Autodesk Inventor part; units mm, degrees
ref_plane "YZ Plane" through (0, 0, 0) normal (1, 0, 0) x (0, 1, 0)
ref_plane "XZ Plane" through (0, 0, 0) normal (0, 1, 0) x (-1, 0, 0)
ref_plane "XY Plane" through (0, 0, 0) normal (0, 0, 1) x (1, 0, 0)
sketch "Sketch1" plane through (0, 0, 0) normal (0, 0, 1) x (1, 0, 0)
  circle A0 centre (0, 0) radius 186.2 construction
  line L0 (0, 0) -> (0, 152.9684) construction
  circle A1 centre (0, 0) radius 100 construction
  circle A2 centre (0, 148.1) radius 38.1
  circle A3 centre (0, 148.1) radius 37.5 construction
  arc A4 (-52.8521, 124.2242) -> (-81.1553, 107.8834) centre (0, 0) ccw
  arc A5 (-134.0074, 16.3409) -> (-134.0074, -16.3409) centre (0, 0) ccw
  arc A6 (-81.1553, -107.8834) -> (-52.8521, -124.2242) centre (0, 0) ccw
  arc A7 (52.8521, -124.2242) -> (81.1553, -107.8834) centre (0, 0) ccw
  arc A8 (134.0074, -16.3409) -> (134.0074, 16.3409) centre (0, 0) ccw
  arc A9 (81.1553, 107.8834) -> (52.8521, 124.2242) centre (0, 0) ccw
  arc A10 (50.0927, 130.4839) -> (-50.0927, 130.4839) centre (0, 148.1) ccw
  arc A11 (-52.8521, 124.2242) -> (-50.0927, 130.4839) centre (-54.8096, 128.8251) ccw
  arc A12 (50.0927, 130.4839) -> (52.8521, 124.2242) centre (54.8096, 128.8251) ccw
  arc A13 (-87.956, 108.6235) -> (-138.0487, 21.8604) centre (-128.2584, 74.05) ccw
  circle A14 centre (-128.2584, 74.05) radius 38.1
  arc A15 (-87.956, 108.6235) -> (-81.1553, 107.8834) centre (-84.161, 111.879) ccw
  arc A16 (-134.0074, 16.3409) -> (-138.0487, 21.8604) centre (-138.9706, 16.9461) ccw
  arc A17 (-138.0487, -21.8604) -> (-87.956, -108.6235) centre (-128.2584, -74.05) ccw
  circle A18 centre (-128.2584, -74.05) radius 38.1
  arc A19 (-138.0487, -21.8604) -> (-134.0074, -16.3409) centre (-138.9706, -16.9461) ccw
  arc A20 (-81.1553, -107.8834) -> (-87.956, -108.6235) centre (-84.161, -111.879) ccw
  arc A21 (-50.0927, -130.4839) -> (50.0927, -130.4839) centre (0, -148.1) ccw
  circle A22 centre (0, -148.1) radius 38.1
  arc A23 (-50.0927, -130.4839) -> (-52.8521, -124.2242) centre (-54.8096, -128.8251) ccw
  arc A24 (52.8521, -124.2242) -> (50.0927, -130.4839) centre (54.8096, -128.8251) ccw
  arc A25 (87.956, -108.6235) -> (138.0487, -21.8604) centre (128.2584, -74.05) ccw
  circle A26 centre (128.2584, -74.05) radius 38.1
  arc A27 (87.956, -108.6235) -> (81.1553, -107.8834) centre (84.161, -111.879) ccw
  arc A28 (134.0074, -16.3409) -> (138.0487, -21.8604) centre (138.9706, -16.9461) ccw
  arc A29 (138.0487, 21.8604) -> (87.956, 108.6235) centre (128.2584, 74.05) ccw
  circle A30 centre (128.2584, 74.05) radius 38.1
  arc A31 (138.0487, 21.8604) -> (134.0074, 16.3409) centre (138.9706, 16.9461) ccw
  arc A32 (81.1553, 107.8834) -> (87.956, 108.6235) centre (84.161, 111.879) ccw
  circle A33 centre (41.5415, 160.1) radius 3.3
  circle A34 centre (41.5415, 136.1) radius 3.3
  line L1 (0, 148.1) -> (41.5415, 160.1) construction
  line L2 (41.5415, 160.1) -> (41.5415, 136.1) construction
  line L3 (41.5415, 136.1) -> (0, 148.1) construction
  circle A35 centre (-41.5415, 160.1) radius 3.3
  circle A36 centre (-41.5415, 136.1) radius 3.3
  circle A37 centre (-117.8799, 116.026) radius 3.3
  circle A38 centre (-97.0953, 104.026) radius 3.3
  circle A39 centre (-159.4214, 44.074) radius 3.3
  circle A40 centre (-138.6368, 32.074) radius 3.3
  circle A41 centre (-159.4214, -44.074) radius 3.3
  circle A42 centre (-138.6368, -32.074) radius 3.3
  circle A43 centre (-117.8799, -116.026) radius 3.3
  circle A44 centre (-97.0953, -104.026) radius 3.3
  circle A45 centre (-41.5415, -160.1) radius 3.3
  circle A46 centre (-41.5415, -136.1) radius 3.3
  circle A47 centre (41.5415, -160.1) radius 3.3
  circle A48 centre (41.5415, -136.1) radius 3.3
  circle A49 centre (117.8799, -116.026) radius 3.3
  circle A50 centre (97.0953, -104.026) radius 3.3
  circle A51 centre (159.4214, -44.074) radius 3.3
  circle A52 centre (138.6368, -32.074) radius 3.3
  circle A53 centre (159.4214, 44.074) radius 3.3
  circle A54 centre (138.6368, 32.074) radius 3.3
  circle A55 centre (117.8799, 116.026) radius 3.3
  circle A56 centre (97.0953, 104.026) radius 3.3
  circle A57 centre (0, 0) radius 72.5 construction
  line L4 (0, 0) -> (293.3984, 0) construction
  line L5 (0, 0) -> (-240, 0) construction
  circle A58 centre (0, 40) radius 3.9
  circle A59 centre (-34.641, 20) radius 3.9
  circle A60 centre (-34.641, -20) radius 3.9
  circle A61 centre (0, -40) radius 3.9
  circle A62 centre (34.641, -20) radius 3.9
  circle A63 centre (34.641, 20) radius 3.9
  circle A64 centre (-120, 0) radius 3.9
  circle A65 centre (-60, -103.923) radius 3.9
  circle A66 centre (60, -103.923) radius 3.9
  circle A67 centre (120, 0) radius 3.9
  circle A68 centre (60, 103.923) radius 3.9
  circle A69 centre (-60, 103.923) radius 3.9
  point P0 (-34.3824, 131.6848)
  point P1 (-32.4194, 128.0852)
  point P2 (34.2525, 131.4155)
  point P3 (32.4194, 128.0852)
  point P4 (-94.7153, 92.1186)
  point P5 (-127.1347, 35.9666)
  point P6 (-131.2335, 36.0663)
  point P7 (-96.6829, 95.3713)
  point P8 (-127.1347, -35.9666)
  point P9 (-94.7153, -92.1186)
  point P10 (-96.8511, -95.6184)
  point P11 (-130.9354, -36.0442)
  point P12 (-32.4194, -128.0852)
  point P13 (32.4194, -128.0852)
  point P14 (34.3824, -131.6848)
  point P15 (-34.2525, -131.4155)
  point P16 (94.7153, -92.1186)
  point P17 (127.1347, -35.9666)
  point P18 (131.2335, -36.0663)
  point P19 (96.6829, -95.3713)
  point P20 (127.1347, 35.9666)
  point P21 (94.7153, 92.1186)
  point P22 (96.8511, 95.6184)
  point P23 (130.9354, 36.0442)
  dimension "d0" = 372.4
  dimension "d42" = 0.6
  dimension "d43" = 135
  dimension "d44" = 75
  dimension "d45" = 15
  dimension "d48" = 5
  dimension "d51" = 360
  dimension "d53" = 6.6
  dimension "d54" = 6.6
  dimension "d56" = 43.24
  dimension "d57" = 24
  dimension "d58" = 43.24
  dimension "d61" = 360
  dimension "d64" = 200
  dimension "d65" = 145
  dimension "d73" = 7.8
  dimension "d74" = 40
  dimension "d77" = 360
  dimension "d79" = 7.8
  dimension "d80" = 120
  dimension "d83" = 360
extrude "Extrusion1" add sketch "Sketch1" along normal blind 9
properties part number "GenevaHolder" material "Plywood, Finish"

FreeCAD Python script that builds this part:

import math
import FreeCAD as App
import Part
import Sketcher
Q = App.Units.Quantity

doc = App.newDocument("Part")
params = doc.addObject("Spreadsheet::Sheet", "Params")
for row, (alias, value) in enumerate([
    ("sketch1_radius", "5 mm"),
    ("sketch1_radius2", "135 mm"),
    ("sketch1_diameter", "6.6 mm"),
    ("sketch1_diameter2", "7.8 mm"),
    ("sketch1_diameter3", "76.2 mm"),
    ("pad1_length", "9 mm"),
], start=1):
    params.set(f"A{row}", alias)
    params.set(f"B{row}", "=" + value)
    params.setAlias(f"B{row}", alias)

body = doc.addObject("PartDesign::Body", "Body")

sketch1 = body.newObject("Sketcher::SketchObject", "Sketch")
sketch1.AttachmentSupport = (doc.getObject("XY_Plane"), [""])
sketch1.MapMode = "FlatFace"
sketch1.addGeometry([
    Part.ArcOfCircle(Part.Circle(App.Vector(-54.8096, 128.8251, 0), App.Vector(0, 0, 1), 5.000009), math.radians(-66.952176), math.radians(19.375328)),
    Part.ArcOfCircle(Part.Circle(App.Vector(0.00162, -0.003245, 0), App.Vector(0, 0, 1), 135.003607), math.radians(113.047777), math.radians(126.95204)),
    Part.ArcOfCircle(Part.Circle(App.Vector(-84.161, 111.879, 0), App.Vector(0, 0, 1), 5.000031), math.radians(-139.375711), math.radians(-53.047595)),
    Part.ArcOfCircle(Part.Circle(App.Vector(-128.2584, 74.05, 0), App.Vector(0, 0, 1), 53.100003), math.radians(40.624714), math.radians(259.375307)),
    Part.ArcOfCircle(Part.Circle(App.Vector(-138.9706, 16.9461, 0), App.Vector(0, 0, 1), 4.999962), math.radians(-6.952181), math.radians(79.375065)),
    Part.ArcOfCircle(Part.Circle(App.Vector(0, 0, 0), App.Vector(0, 0, 1), 135.000031), math.radians(173.04766), math.radians(186.95234)),
    Part.ArcOfCircle(Part.Circle(App.Vector(-138.9706, -16.9461, 0), App.Vector(0, 0, 1), 5.000024), math.radians(-79.375065), math.radians(6.952181)),
    Part.ArcOfCircle(Part.Circle(App.Vector(-128.2584, -74.05, 0), App.Vector(0, 0, 1), 53.099947), math.radians(100.624693), math.radians(319.375286)),
    Part.ArcOfCircle(Part.Circle(App.Vector(-84.161, -111.879, 0), App.Vector(0, 0, 1), 4.999905), math.radians(53.047595), math.radians(139.375711)),
    Part.ArcOfCircle(Part.Circle(App.Vector(-0.002, -0.003025, 0), App.Vector(0, 0, 1), 134.99642), math.radians(-126.952412), math.radians(-113.047405)),
    Part.ArcOfCircle(Part.Circle(App.Vector(-54.8096, -128.8251, 0), App.Vector(0, 0, 1), 5.000076), math.radians(-19.375328), math.radians(66.952176)),
    Part.ArcOfCircle(Part.Circle(App.Vector(0, -148.1, 0), App.Vector(0, 0, 1), 53.099958), math.radians(160.624756), math.radians(379.375244)),
    Part.ArcOfCircle(Part.Circle(App.Vector(54.8096, -128.8251, 0), App.Vector(0, 0, 1), 5.000009), math.radians(113.047824), math.radians(199.375328)),
    Part.ArcOfCircle(Part.Circle(App.Vector(-0.00162, 0.003245, 0), App.Vector(0, 0, 1), 135.003607), math.radians(-66.952223), math.radians(-53.04796)),
    Part.ArcOfCircle(Part.Circle(App.Vector(84.161, -111.879, 0), App.Vector(0, 0, 1), 5.000031), math.radians(40.624289), math.radians(126.952405)),
    Part.ArcOfCircle(Part.Circle(App.Vector(128.2584, -74.05, 0), App.Vector(0, 0, 1), 53.100003), math.radians(-139.375286), math.radians(79.375307)),
    Part.ArcOfCircle(Part.Circle(App.Vector(138.9706, -16.9461, 0), App.Vector(0, 0, 1), 4.999962), math.radians(173.047819), math.radians(259.375065)),
    Part.ArcOfCircle(Part.Circle(App.Vector(0, 0, 0), App.Vector(0, 0, 1), 135.000031), math.radians(-6.95234), math.radians(6.95234)),
    Part.ArcOfCircle(Part.Circle(App.Vector(138.9706, 16.9461, 0), App.Vector(0, 0, 1), 5.000024), math.radians(100.624935), math.radians(186.952181)),
    Part.ArcOfCircle(Part.Circle(App.Vector(128.2584, 74.05, 0), App.Vector(0, 0, 1), 53.099947), math.radians(-79.375307), math.radians(139.375286)),
    Part.ArcOfCircle(Part.Circle(App.Vector(84.161, 111.879, 0), App.Vector(0, 0, 1), 4.999905), math.radians(-126.952405), math.radians(-40.624289)),
    Part.ArcOfCircle(Part.Circle(App.Vector(0.002, 0.003025, 0), App.Vector(0, 0, 1), 134.99642), math.radians(53.047588), math.radians(66.952595)),
    Part.ArcOfCircle(Part.Circle(App.Vector(54.8096, 128.8251, 0), App.Vector(0, 0, 1), 5.000076), math.radians(160.624672), math.radians(246.952176)),
    Part.ArcOfCircle(Part.Circle(App.Vector(0, 148.1, 0), App.Vector(0, 0, 1), 53.099958), math.radians(-19.375244), math.radians(199.375244)),
    Part.Circle(App.Vector(-117.8799, -116.026, 0), App.Vector(0, 0, 1), 3.3),
    Part.Circle(App.Vector(-97.0953, -104.026, 0), App.Vector(0, 0, 1), 3.3),
    Part.Circle(App.Vector(-41.5415, -160.1, 0), App.Vector(0, 0, 1), 3.3),
    Part.Circle(App.Vector(-60, -103.923, 0), App.Vector(0, 0, 1), 3.9),
    Part.Circle(App.Vector(-41.5415, -136.1, 0), App.Vector(0, 0, 1), 3.3),
    Part.Circle(App.Vector(-128.2584, -74.05, 0), App.Vector(0, 0, 1), 38.1),
    Part.Circle(App.Vector(-159.4214, -44.074, 0), App.Vector(0, 0, 1), 3.3),
    Part.Circle(App.Vector(-138.6368, -32.074, 0), App.Vector(0, 0, 1), 3.3),
    Part.Circle(App.Vector(-34.641, -20, 0), App.Vector(0, 0, 1), 3.9),
    Part.Circle(App.Vector(41.5415, -160.1, 0), App.Vector(0, 0, 1), 3.3),
    Part.Circle(App.Vector(0, -148.1, 0), App.Vector(0, 0, 1), 38.1),
    Part.Circle(App.Vector(41.5415, -136.1, 0), App.Vector(0, 0, 1), 3.3),
    Part.Circle(App.Vector(60, -103.923, 0), App.Vector(0, 0, 1), 3.9),
    Part.Circle(App.Vector(97.0953, -104.026, 0), App.Vector(0, 0, 1), 3.3),
    Part.Circle(App.Vector(117.8799, -116.026, 0), App.Vector(0, 0, 1), 3.3),
    Part.Circle(App.Vector(0, -40, 0), App.Vector(0, 0, 1), 3.9),
    Part.Circle(App.Vector(34.641, -20, 0), App.Vector(0, 0, 1), 3.9),
    Part.Circle(App.Vector(128.2584, -74.05, 0), App.Vector(0, 0, 1), 38.1),
    Part.Circle(App.Vector(138.6368, -32.074, 0), App.Vector(0, 0, 1), 3.3),
    Part.Circle(App.Vector(159.4214, -44.074, 0), App.Vector(0, 0, 1), 3.3),
    Part.Circle(App.Vector(-159.4214, 44.074, 0), App.Vector(0, 0, 1), 3.3),
    Part.Circle(App.Vector(-138.6368, 32.074, 0), App.Vector(0, 0, 1), 3.3),
    Part.Circle(App.Vector(-120, 0, 0), App.Vector(0, 0, 1), 3.9),
    Part.Circle(App.Vector(-128.2584, 74.05, 0), App.Vector(0, 0, 1), 38.1),
    Part.Circle(App.Vector(-34.641, 20, 0), App.Vector(0, 0, 1), 3.9),
    Part.Circle(App.Vector(-117.8799, 116.026, 0), App.Vector(0, 0, 1), 3.3),
    Part.Circle(App.Vector(-97.0953, 104.026, 0), App.Vector(0, 0, 1), 3.3),
    Part.Circle(App.Vector(-60, 103.923, 0), App.Vector(0, 0, 1), 3.9),
    Part.Circle(App.Vector(-41.5415, 136.1, 0), App.Vector(0, 0, 1), 3.3),
    Part.Circle(App.Vector(-41.5415, 160.1, 0), App.Vector(0, 0, 1), 3.3),
    Part.Circle(App.Vector(34.641, 20, 0), App.Vector(0, 0, 1), 3.9),
    Part.Circle(App.Vector(0, 40, 0), App.Vector(0, 0, 1), 3.9),
    Part.Circle(App.Vector(120, 0, 0), App.Vector(0, 0, 1), 3.9),
    Part.Circle(App.Vector(138.6368, 32.074, 0), App.Vector(0, 0, 1), 3.3),
    Part.Circle(App.Vector(159.4214, 44.074, 0), App.Vector(0, 0, 1), 3.3),
    Part.Circle(App.Vector(128.2584, 74.05, 0), App.Vector(0, 0, 1), 38.1),
    Part.Circle(App.Vector(0, 148.1, 0), App.Vector(0, 0, 1), 38.1),
    Part.Circle(App.Vector(41.5415, 136.1, 0), App.Vector(0, 0, 1), 3.3),
    Part.Circle(App.Vector(60, 103.923, 0), App.Vector(0, 0, 1), 3.9),
    Part.Circle(App.Vector(41.5415, 160.1, 0), App.Vector(0, 0, 1), 3.3),
    Part.Circle(App.Vector(97.0953, 104.026, 0), App.Vector(0, 0, 1), 3.3),
    Part.Circle(App.Vector(117.8799, 116.026, 0), App.Vector(0, 0, 1), 3.3),
], False)
sketch1.addConstraint([
    Sketcher.Constraint("Tangent", 0, 1, 1, 1),
    Sketcher.Constraint("Tangent", 1, 2, 2, 2),
    Sketcher.Constraint("Tangent", 2, 1, 3, 1),
    Sketcher.Constraint("Tangent", 3, 2, 4, 2),
    Sketcher.Constraint("Tangent", 4, 1, 5, 1),
    Sketcher.Constraint("Tangent", 5, 2, 6, 2),
    Sketcher.Constraint("Tangent", 6, 1, 7, 1),
    Sketcher.Constraint("Tangent", 7, 2, 8, 2),
    Sketcher.Constraint("Tangent", 8, 1, 9, 1),
    Sketcher.Constraint("Tangent", 9, 2, 10, 2),
    Sketcher.Constraint("Tangent", 10, 1, 11, 1),
    Sketcher.Constraint("Tangent", 11, 2, 12, 2),
    Sketcher.Constraint("Tangent", 12, 1, 13, 1),
    Sketcher.Constraint("Tangent", 13, 2, 14, 2),
    Sketcher.Constraint("Tangent", 14, 1, 15, 1),
    Sketcher.Constraint("Tangent", 15, 2, 16, 2),
    Sketcher.Constraint("Tangent", 16, 1, 17, 1),
    Sketcher.Constraint("Tangent", 17, 2, 18, 2),
    Sketcher.Constraint("Tangent", 18, 1, 19, 1),
    Sketcher.Constraint("Tangent", 19, 2, 20, 2),
    Sketcher.Constraint("Tangent", 20, 1, 21, 1),
    Sketcher.Constraint("Tangent", 21, 2, 22, 2),
    Sketcher.Constraint("Tangent", 22, 1, 23, 1),
    Sketcher.Constraint("Tangent", 23, 2, 0, 2),
    Sketcher.Constraint("Coincident", 5, 3, -1, 1),
    Sketcher.Constraint("Coincident", 17, 3, -1, 1),
    Sketcher.Constraint("Coincident", 29, 3, 7, 3),
    Sketcher.Constraint("Coincident", 34, 3, 11, 3),
    Sketcher.Constraint("Coincident", 41, 3, 15, 3),
    Sketcher.Constraint("Coincident", 47, 3, 3, 3),
    Sketcher.Constraint("Coincident", 59, 3, 19, 3),
    Sketcher.Constraint("Coincident", 60, 3, 23, 3),
    Sketcher.Constraint("Equal", 0, 2),
    Sketcher.Constraint("Equal", 2, 4),
    Sketcher.Constraint("Equal", 4, 6),
    Sketcher.Constraint("Equal", 3, 7),
    Sketcher.Constraint("Equal", 6, 8),
    Sketcher.Constraint("Equal", 8, 10),
    Sketcher.Constraint("Equal", 7, 11),
    Sketcher.Constraint("Equal", 10, 12),
    Sketcher.Constraint("Equal", 1, 13),
    Sketcher.Constraint("Equal", 12, 14),
    Sketcher.Constraint("Equal", 11, 15),
    Sketcher.Constraint("Equal", 14, 16),
    Sketcher.Constraint("Equal", 5, 17),
    Sketcher.Constraint("Equal", 16, 18),
    Sketcher.Constraint("Equal", 15, 19),
    Sketcher.Constraint("Equal", 18, 20),
    Sketcher.Constraint("Equal", 9, 21),
    Sketcher.Constraint("Equal", 20, 22),
    Sketcher.Constraint("Equal", 19, 23),
    Sketcher.Constraint("Equal", 24, 25),
    Sketcher.Constraint("Equal", 25, 26),
    Sketcher.Constraint("Equal", 26, 28),
    Sketcher.Constraint("Equal", 28, 30),
    Sketcher.Constraint("Equal", 30, 31),
    Sketcher.Constraint("Equal", 27, 32),
    Sketcher.Constraint("Equal", 31, 33),
    Sketcher.Constraint("Equal", 29, 34),
    Sketcher.Constraint("Equal", 33, 35),
    Sketcher.Constraint("Equal", 32, 36),
    Sketcher.Constraint("Equal", 35, 37),
    Sketcher.Constraint("Equal", 37, 38),
    Sketcher.Constraint("Equal", 36, 39),
    Sketcher.Constraint("Equal", 39, 40),
    Sketcher.Constraint("Equal", 34, 41),
    Sketcher.Constraint("Equal", 38, 42),
    Sketcher.Constraint("Equal", 42, 43),
    Sketcher.Constraint("Equal", 43, 44),
    Sketcher.Constraint("Equal", 44, 45),
    Sketcher.Constraint("Equal", 40, 46),
    Sketcher.Constraint("Equal", 41, 47),
    Sketcher.Constraint("Equal", 46, 48),
    Sketcher.Constraint("Equal", 45, 49),
    Sketcher.Constraint("Equal", 49, 50),
    Sketcher.Constraint("Equal", 48, 51),
    Sketcher.Constraint("Equal", 50, 52),
    Sketcher.Constraint("Equal", 52, 53),
    Sketcher.Constraint("Equal", 51, 54),
    Sketcher.Constraint("Equal", 54, 55),
    Sketcher.Constraint("Equal", 55, 56),
    Sketcher.Constraint("Equal", 53, 57),
    Sketcher.Constraint("Equal", 57, 58),
    Sketcher.Constraint("Equal", 47, 59),
    Sketcher.Constraint("Equal", 59, 60),
    Sketcher.Constraint("Equal", 58, 61),
    Sketcher.Constraint("Equal", 56, 62),
    Sketcher.Constraint("Equal", 61, 63),
    Sketcher.Constraint("Equal", 63, 64),
    Sketcher.Constraint("Equal", 64, 65),
    Sketcher.Constraint("Symmetric", 0, 3, 12, 3, -1, 1),
    Sketcher.Constraint("Symmetric", 2, 3, 14, 3, -1, 1),
    Sketcher.Constraint("Symmetric", 7, 3, 19, 3, -1, 1),
    Sketcher.Constraint("Symmetric", 9, 3, 21, 3, -1, 1),
    Sketcher.Constraint("Symmetric", 43, 3, 44, 3, -1, 1),
    Sketcher.Constraint("Symmetric", 42, 3, 45, 3, -1, 1),
    Sketcher.Constraint("Symmetric", 40, 3, 48, 3, -1, 1),
    Sketcher.Constraint("Symmetric", 38, 3, 49, 3, -1, 1),
    Sketcher.Constraint("Symmetric", 37, 3, 50, 3, -1, 1),
    Sketcher.Constraint("Symmetric", 36, 3, 51, 3, -1, 1),
    Sketcher.Constraint("Symmetric", 35, 3, 52, 3, -1, 1),
    Sketcher.Constraint("Symmetric", 33, 3, 53, 3, -1, 1),
    Sketcher.Constraint("Symmetric", 32, 3, 54, 3, -1, 1),
    Sketcher.Constraint("Symmetric", 39, 3, 55, 3, -1, 1),
    Sketcher.Constraint("Symmetric", 46, 3, 56, 3, -1, 1),
    Sketcher.Constraint("Symmetric", 31, 3, 57, 3, -1, 1),
    Sketcher.Constraint("Symmetric", 30, 3, 58, 3, -1, 1),
    Sketcher.Constraint("Symmetric", 28, 3, 61, 3, -1, 1),
    Sketcher.Constraint("Symmetric", 27, 3, 62, 3, -1, 1),
    Sketcher.Constraint("Symmetric", 26, 3, 63, 3, -1, 1),
    Sketcher.Constraint("Symmetric", 25, 3, 64, 3, -1, 1),
    Sketcher.Constraint("Symmetric", 24, 3, 65, 3, -1, 1),
    Sketcher.Constraint("Symmetric", 10, 3, 12, 3, -2),
    Sketcher.Constraint("Symmetric", 8, 3, 14, 3, -2),
    Sketcher.Constraint("Symmetric", 26, 3, 33, 3, -2),
    Sketcher.Constraint("Symmetric", 28, 3, 35, 3, -2),
    Sketcher.Constraint("Symmetric", 27, 3, 36, 3, -2),
    Sketcher.Constraint("Symmetric", 25, 3, 37, 3, -2),
    Sketcher.Constraint("Symmetric", 24, 3, 38, 3, -2),
    Sketcher.Constraint("Symmetric", 32, 3, 40, 3, -2),
    Sketcher.Constraint("Symmetric", 31, 3, 42, 3, -2),
    Sketcher.Constraint("Symmetric", 30, 3, 43, 3, -2),
    Sketcher.Constraint("PointOnObject", 23, 3, -2),
    Sketcher.Constraint("PointOnObject", 39, 3, -2),
    Sketcher.Constraint("PointOnObject", 46, 3, -1),
    Sketcher.Constraint("Horizontal", 7, 3, 15, 3),
    Sketcher.Constraint("Horizontal", 4, 3, 18, 3),
    Sketcher.Constraint("Vertical", 26, 3, 28, 3),
    Sketcher.Constraint("Radius", 0, Q("5 mm")),
    Sketcher.Constraint("Radius", 5, Q("135 mm")),
    Sketcher.Constraint("Diameter", 24, Q("6.6 mm")),
    Sketcher.Constraint("Diameter", 27, Q("7.8 mm")),
    Sketcher.Constraint("DistanceY", 39, 3, -1, 1, Q("40 mm")),
    Sketcher.Constraint("DistanceX", 46, 3, -1, 1, Q("120 mm")),
    Sketcher.Constraint("Diameter", 29, Q("76.2 mm")),
    Sketcher.Constraint("Radius", 3, Q("53.1 mm")),
    Sketcher.Constraint("DistanceX", 27, 3, -1, 1, Q("60 mm")),
    Sketcher.Constraint("DistanceY", 32, 3, -1, 1, Q("20 mm")),
    Sketcher.Constraint("DistanceY", 11, 3, -1, 1, Q("148.1 mm")),
    Sketcher.Constraint("DistanceY", 26, 3, -1, 1, Q("160.1 mm")),
    Sketcher.Constraint("DistanceY", 28, 3, -1, 1, Q("136.1 mm")),
    Sketcher.Constraint("Radius", 1, Q("135.0036 mm")),
    Sketcher.Constraint("Radius", 9, Q("134.9964 mm")),
    Sketcher.Constraint("DistanceY", -1, 1, 3, 3, Q("74.05 mm")),
    Sketcher.Constraint("DistanceX", 24, 3, -1, 1, Q("117.88 mm")),
    Sketcher.Constraint("DistanceY", -1, 1, 0, 3, Q("128.825 mm")),
    Sketcher.Constraint("DistanceX", 2, 3, -1, 1, Q("84.161 mm")),
    Sketcher.Constraint("DistanceY", -1, 1, 2, 3, Q("111.879 mm")),
    Sketcher.Constraint("DistanceY", 24, 3, -1, 1, Q("116.026 mm")),
    Sketcher.Constraint("DistanceY", 25, 3, -1, 1, Q("104.026 mm")),
    Sketcher.Constraint("DistanceY", 27, 3, -1, 1, Q("103.923 mm")),
    Sketcher.Constraint("DistanceY", 30, 3, -1, 1, Q("44.074 mm")),
    Sketcher.Constraint("DistanceY", 31, 3, -1, 1, Q("32.074 mm")),
    Sketcher.Constraint("DistanceX", 32, 3, -1, 1, Q("34.641 mm")),
    Sketcher.Constraint("DistanceX", 25, 3, -1, 1, Q("97.0953 mm")),
    Sketcher.Constraint("DistanceX", 26, 3, -1, 1, Q("41.5415 mm")),
    Sketcher.Constraint("DistanceX", 30, 3, -1, 1, Q("159.4214 mm")),
    Sketcher.Constraint("DistanceX", 31, 3, -1, 1, Q("138.6368 mm")),
])
sketch1.setExpression("Constraints[128]", "Params.sketch1_radius")
sketch1.setExpression("Constraints[129]", "Params.sketch1_radius2")
sketch1.setExpression("Constraints[130]", "Params.sketch1_diameter")
sketch1.setExpression("Constraints[131]", "Params.sketch1_diameter2")
sketch1.setExpression("Constraints[134]", "Params.sketch1_diameter3")
pad1 = body.newObject("PartDesign::Pad", "Pad")
pad1.Profile = sketch1
pad1.setExpression("Length", "Params.pad1_length")

doc.recompute()
